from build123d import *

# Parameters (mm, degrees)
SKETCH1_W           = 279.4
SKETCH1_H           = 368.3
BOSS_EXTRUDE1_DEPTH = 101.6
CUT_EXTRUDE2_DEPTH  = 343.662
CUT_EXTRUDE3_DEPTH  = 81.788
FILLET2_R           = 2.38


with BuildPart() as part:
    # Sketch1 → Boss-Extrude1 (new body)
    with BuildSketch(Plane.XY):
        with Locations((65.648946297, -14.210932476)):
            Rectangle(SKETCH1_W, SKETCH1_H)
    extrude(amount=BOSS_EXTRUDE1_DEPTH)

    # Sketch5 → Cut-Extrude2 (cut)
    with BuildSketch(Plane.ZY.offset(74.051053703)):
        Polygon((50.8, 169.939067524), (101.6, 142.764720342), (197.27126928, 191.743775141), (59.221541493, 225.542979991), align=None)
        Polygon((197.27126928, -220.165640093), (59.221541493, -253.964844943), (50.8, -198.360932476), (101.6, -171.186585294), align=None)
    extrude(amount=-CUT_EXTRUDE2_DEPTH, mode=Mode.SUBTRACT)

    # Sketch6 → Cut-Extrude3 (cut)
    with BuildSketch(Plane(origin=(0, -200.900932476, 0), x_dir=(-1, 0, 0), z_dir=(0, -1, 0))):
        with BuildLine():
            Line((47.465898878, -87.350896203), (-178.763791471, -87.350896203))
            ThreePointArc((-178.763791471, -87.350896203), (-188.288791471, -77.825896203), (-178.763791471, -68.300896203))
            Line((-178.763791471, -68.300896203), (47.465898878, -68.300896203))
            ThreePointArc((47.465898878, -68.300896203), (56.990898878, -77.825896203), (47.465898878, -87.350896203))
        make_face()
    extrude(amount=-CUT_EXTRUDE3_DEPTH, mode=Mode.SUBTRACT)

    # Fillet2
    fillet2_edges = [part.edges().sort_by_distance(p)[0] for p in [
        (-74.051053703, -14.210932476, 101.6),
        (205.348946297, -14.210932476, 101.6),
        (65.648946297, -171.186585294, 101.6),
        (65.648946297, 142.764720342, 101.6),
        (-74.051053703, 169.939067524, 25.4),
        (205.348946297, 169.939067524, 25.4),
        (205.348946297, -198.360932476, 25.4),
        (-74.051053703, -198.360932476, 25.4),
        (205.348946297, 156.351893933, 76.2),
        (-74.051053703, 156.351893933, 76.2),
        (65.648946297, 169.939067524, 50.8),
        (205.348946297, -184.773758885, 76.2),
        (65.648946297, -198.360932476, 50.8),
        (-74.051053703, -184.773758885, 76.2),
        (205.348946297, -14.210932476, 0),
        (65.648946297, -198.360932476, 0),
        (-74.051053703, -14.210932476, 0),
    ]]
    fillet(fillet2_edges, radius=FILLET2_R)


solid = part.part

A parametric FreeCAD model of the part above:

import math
import FreeCAD as App
import Part
import Sketcher
Q = App.Units.Quantity


def edges_at(feature, points):
    """Names of the edges that pass closest to the given points."""
    edges = feature.Shape.Edges
    near = lambda p: min(range(len(edges)), key=lambda i: edges[i].distToShape(Part.Vertex(*p))[0])
    return sorted({f"Edge{near(p) + 1}" for p in points})

doc = App.newDocument("Part")
body = doc.addObject("PartDesign::Body", "Body")

# Sketch on XY plane
sketch1 = body.newObject("Sketcher::SketchObject", "Sketch")
sketch1.AttachmentSupport = (doc.getObject("XY_Plane"), [""])
sketch1.MapMode = "FlatFace"
sketch1.addGeometry([
    Part.LineSegment(App.Vector(-74.051054, 169.939068, 0), App.Vector(-74.051054, -198.360932, 0)),
    Part.LineSegment(App.Vector(-74.051054, -198.360932, 0), App.Vector(205.348946, -198.360932, 0)),
    Part.LineSegment(App.Vector(205.348946, -198.360932, 0), App.Vector(205.348946, 169.939068, 0)),
    Part.LineSegment(App.Vector(205.348946, 169.939068, 0), App.Vector(-74.051054, 169.939068, 0)),
], False)
sketch1.addConstraint([
    Sketcher.Constraint("Coincident", 0, 2, 1, 1),
    Sketcher.Constraint("Coincident", 1, 2, 2, 1),
    Sketcher.Constraint("Coincident", 2, 2, 3, 1),
    Sketcher.Constraint("Coincident", 3, 2, 0, 1),
    Sketcher.Constraint("Vertical", 0),
    Sketcher.Constraint("Horizontal", 1),
    Sketcher.Constraint("Vertical", 2),
    Sketcher.Constraint("Horizontal", 3),
    Sketcher.Constraint("DistanceX", 1, 1, 1, 2, Q("11 in")),
    Sketcher.Constraint("DistanceY", 0, 2, 0, 1, Q("14.5 in")),
    Sketcher.Constraint("DistanceX", 0, 2, -1, 1, Q("74.051054 mm")),
    Sketcher.Constraint("DistanceY", 0, 2, -1, 1, Q("198.360932 mm")),
])
pad1 = body.newObject("PartDesign::Pad", "Pad")
pad1.Profile = sketch1
pad1.Length = Q("4 in")

# Sketch on YZ plane
sketch2 = body.newObject("Sketcher::SketchObject", "Sketch001")
sketch2.AttachmentSupport = (doc.getObject("YZ_Plane"), [""])
sketch2.MapMode = "FlatFace"
sketch2.AttachmentOffset = App.Placement(App.Vector(0, 0, -74.051054), App.Rotation())
sketch2.addGeometry([
    Part.LineSegment(App.Vector(169.939068, 50.8, 0), App.Vector(142.76472, 101.6, 0)),  # 0
    Part.LineSegment(App.Vector(142.76472, 101.6, 0), App.Vector(191.743775, 197.271269, 0)),  # 1
    Part.LineSegment(App.Vector(191.743775, 197.271269, 0), App.Vector(225.54298, 59.221541, 0)),  # 2
    Part.LineSegment(App.Vector(225.54298, 59.221541, 0), App.Vector(169.939068, 50.8, 0)),  # 3
    Part.LineSegment(App.Vector(-253.964845, 59.221541, 0), App.Vector(-220.16564, 197.271269, 0)),  # 4
    Part.LineSegment(App.Vector(-220.16564, 197.271269, 0), App.Vector(-171.186585, 101.6, 0)),  # 5
    Part.LineSegment(App.Vector(-171.186585, 101.6, 0), App.Vector(-198.360932, 50.8, 0)),  # 6
    Part.LineSegment(App.Vector(-198.360932, 50.8, 0), App.Vector(-253.964845, 59.221541, 0)),  # 7
], False)
sketch2.addConstraint([
    Sketcher.Constraint("Coincident", 0, 2, 1, 1),
    Sketcher.Constraint("Coincident", 1, 2, 2, 1),
    Sketcher.Constraint("Coincident", 2, 2, 3, 1),
    Sketcher.Constraint("Coincident", 3, 2, 0, 1),
    Sketcher.Constraint("Coincident", 4, 2, 5, 1),
    Sketcher.Constraint("Coincident", 5, 2, 6, 1),
    Sketcher.Constraint("Coincident", 6, 2, 7, 1),
    Sketcher.Constraint("Coincident", 7, 2, 4, 1),
    Sketcher.Constraint("Horizontal", 1, 2, 4, 2),
    Sketcher.Constraint("Horizontal", 0, 2, 5, 2),
    Sketcher.Constraint("Horizontal", 3, 2, 6, 2),
    Sketcher.Constraint("Horizontal", 2, 2, 7, 2),
    Sketcher.Constraint("Equal", 2, 4),
    Sketcher.Constraint("Equal", 1, 5),
    Sketcher.Constraint("Equal", 0, 6),
    Sketcher.Constraint("DistanceY", -1, 1, 0, 2, Q("4 in")),
    Sketcher.Constraint("DistanceY", -1, 1, 3, 2, Q("2 in")),
    Sketcher.Constraint("DistanceX", 6, 2, 3, 2, Q("14.5 in")),
    Sketcher.Constraint("Distance", 0, Q("57.611502 mm")),
    Sketcher.Constraint("Distance", 1, Q("107.47995 mm")),
    Sketcher.Constraint("DistanceX", -1, 1, 0, 2, Q("142.76472 mm")),
    Sketcher.Constraint("DistanceY", -1, 1, 1, 2, Q("197.271269 mm")),
    Sketcher.Constraint("DistanceX", -1, 1, 2, 2, Q("225.54298 mm")),
    Sketcher.Constraint("DistanceY", -1, 1, 2, 2, Q("59.221541 mm")),
])
pocket1 = body.newObject("PartDesign::Pocket", "Pocket")
pocket1.Profile = sketch2
pocket1.Length = Q("13.53 in")
pocket1.Reversed = True

# Sketch on XZ plane
sketch3 = body.newObject("Sketcher::SketchObject", "Sketch002")
sketch3.AttachmentSupport = (doc.getObject("XZ_Plane"), [""])
sketch3.MapMode = "FlatFace"
sketch3.AttachmentOffset = App.Placement(App.Vector(0, 0, 200.900932), App.Rotation())
sketch3.addGeometry([
    Part.LineSegment(App.Vector(178.763791, 87.350896, 0), App.Vector(-47.465899, 87.350896, 0)),
    Part.ArcOfCircle(Part.Circle(App.Vector(-47.465899, 77.825896, 0), App.Vector(0, 0, 1), 9.525), math.radians(90), math.radians(270)),
    Part.LineSegment(App.Vector(-47.465899, 68.300896, 0), App.Vector(178.763791, 68.300896, 0)),
    Part.ArcOfCircle(Part.Circle(App.Vector(178.763791, 77.825896, 0), App.Vector(0, 0, 1), 9.525), math.radians(-90), math.radians(90)),
], False)
sketch3.addConstraint([
    Sketcher.Constraint("Tangent", 0, 2, 1, 1),
    Sketcher.Constraint("Tangent", 1, 2, 2, 1),
    Sketcher.Constraint("Tangent", 2, 2, 3, 1),
    Sketcher.Constraint("Tangent", 3, 2, 0, 1),
    Sketcher.Constraint("Horizontal", 0),
    Sketcher.Constraint("Horizontal", 2),
    Sketcher.Constraint("Radius", 1, Q("0.375 in")),
    Sketcher.Constraint("DistanceX", 0, 2, 0, 1, Q("226.22969 mm")),
    Sketcher.Constraint("DistanceX", 1, 3, -1, 1, Q("47.465899 mm")),
    Sketcher.Constraint("DistanceY", -1, 1, 1, 3, Q("77.825896 mm")),
])
pocket2 = body.newObject("PartDesign::Pocket", "Pocket001")
pocket2.Profile = sketch3
pocket2.Length = Q("3.22 in")
doc.recompute()

fillet = body.newObject("PartDesign::Fillet", "Fillet")
fillet.Base = (pocket2, edges_at(pocket2, [
    (-74.051, -14.211, 101.6),
    (205.349, -14.211, 101.6),
    (65.649, -171.187, 101.6),
    (65.649, 142.765, 101.6),
    (-74.051, 169.939, 25.4),
    (205.349, 169.939, 25.4),
    (205.349, -198.361, 25.4),
    (-74.051, -198.361, 25.4),
    (205.349, 156.352, 76.2),
    (-74.051, 156.352, 76.2),
    (65.649, 169.939, 50.8),
    (205.349, -184.774, 76.2),
    (65.649, -198.361, 50.8),
    (-74.051, -184.774, 76.2),
    (205.349, -14.211, 0),
    (65.649, -198.361, 0),
    (-74.051, -14.211, 0),
]))
fillet.Radius = 2.38

doc.recompute()
